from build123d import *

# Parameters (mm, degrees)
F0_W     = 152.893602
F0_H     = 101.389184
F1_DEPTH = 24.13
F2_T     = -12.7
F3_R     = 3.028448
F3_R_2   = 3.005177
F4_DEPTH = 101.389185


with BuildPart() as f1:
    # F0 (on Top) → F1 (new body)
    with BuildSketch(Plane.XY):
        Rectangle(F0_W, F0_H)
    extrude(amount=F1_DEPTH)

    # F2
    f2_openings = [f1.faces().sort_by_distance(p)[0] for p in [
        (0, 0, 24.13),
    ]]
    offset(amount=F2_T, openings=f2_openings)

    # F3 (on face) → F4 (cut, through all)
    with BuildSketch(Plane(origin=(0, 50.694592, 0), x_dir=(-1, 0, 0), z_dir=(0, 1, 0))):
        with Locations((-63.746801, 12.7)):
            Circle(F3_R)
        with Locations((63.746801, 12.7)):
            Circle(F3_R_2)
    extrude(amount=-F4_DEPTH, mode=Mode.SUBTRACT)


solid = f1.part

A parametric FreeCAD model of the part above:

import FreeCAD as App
import Part
import Sketcher
from FreeCAD import Vector
Q = App.Units.Quantity


def faces_at(feature, points):
    """Names of the faces that lie closest to the given points."""
    faces = feature.Shape.Faces
    near = lambda p: min(range(len(faces)), key=lambda i: faces[i].distToShape(Part.Vertex(*p))[0])
    return sorted({f"Face{near(p) + 1}" for p in points})

doc = App.newDocument("Part")
body = doc.addObject("PartDesign::Body", "Body")

# Sketch on XY plane
sketch1 = body.newObject("Sketcher::SketchObject", "Sketch")
sketch1.AttachmentSupport = (doc.getObject("XY_Plane"), [""])
sketch1.MapMode = "FlatFace"
sketch1.addGeometry([
    Part.LineSegment(Vector(-76, 51, 0), Vector(-76, -51, 0)),
    Part.LineSegment(Vector(-76, -51, 0), Vector(76, -51, 0)),
    Part.LineSegment(Vector(76, -51, 0), Vector(76, 51, 0)),
    Part.LineSegment(Vector(76, 51, 0), Vector(-76, 51, 0)),
], False)
sketch1.addConstraint([
    Sketcher.Constraint("Coincident", 0, 2, 1, 1),
    Sketcher.Constraint("Coincident", 1, 2, 2, 1),
    Sketcher.Constraint("Coincident", 2, 2, 3, 1),
    Sketcher.Constraint("Coincident", 3, 2, 0, 1),
    Sketcher.Constraint("Vertical", 0),
    Sketcher.Constraint("Horizontal", 1),
    Sketcher.Constraint("Vertical", 2),
    Sketcher.Constraint("Horizontal", 3),
    Sketcher.Constraint("Symmetric", 0, 2, 2, 2, -1, 1),
    Sketcher.Constraint("DistanceY", 0, 2, 0, 1, Q("3.9917002 in")),
    Sketcher.Constraint("DistanceX", 1, 1, 1, 2, Q("152.893602 mm")),
])
pad1 = body.newObject("PartDesign::Pad", "Pad")
pad1.Profile = sketch1
pad1.Length = Q("0.95 in")
doc.recompute()

thickness = body.newObject("PartDesign::Thickness", "Thickness")
thickness.Base = (pad1, faces_at(pad1, [(0, 0, 24.13)]))
thickness.Value = Q("0.5 in")
thickness.Reversed = True
thickness.Join = "Arc"

# Sketch on XZ plane
sketch2 = body.newObject("Sketcher::SketchObject", "Sketch001")
sketch2.AttachmentSupport = (doc.getObject("XZ_Plane"), [""])
sketch2.MapMode = "FlatFace"
sketch2.AttachmentOffset = App.Placement(Vector(0, 0, -50.694592), App.Rotation())
sketch2.addGeometry([
    Part.Circle(Vector(63.7, 12.7, 0), Vector(0, 0, 1), 3),
    Part.Circle(Vector(-63.7, 12.7, 0), Vector(0, 0, 1), 3),
], False)
sketch2.addConstraint([
    Sketcher.Constraint("Symmetric", 0, 3, 1, 3, -2),
    Sketcher.Constraint("DistanceY", -1, 1, 0, 3, Q("0.5 in")),
    Sketcher.Constraint("Diameter", 0, Q("6.056896 mm")),
    Sketcher.Constraint("Diameter", 1, Q("6.010354 mm")),
    Sketcher.Constraint("DistanceX", -1, 1, 0, 3, Q("63.746801 mm")),
])
pocket1 = body.newObject("PartDesign::Pocket", "Pocket")
pocket1.Profile = sketch2
pocket1.Type = "ThroughAll"
pocket1.Reversed = True

doc.recompute()
